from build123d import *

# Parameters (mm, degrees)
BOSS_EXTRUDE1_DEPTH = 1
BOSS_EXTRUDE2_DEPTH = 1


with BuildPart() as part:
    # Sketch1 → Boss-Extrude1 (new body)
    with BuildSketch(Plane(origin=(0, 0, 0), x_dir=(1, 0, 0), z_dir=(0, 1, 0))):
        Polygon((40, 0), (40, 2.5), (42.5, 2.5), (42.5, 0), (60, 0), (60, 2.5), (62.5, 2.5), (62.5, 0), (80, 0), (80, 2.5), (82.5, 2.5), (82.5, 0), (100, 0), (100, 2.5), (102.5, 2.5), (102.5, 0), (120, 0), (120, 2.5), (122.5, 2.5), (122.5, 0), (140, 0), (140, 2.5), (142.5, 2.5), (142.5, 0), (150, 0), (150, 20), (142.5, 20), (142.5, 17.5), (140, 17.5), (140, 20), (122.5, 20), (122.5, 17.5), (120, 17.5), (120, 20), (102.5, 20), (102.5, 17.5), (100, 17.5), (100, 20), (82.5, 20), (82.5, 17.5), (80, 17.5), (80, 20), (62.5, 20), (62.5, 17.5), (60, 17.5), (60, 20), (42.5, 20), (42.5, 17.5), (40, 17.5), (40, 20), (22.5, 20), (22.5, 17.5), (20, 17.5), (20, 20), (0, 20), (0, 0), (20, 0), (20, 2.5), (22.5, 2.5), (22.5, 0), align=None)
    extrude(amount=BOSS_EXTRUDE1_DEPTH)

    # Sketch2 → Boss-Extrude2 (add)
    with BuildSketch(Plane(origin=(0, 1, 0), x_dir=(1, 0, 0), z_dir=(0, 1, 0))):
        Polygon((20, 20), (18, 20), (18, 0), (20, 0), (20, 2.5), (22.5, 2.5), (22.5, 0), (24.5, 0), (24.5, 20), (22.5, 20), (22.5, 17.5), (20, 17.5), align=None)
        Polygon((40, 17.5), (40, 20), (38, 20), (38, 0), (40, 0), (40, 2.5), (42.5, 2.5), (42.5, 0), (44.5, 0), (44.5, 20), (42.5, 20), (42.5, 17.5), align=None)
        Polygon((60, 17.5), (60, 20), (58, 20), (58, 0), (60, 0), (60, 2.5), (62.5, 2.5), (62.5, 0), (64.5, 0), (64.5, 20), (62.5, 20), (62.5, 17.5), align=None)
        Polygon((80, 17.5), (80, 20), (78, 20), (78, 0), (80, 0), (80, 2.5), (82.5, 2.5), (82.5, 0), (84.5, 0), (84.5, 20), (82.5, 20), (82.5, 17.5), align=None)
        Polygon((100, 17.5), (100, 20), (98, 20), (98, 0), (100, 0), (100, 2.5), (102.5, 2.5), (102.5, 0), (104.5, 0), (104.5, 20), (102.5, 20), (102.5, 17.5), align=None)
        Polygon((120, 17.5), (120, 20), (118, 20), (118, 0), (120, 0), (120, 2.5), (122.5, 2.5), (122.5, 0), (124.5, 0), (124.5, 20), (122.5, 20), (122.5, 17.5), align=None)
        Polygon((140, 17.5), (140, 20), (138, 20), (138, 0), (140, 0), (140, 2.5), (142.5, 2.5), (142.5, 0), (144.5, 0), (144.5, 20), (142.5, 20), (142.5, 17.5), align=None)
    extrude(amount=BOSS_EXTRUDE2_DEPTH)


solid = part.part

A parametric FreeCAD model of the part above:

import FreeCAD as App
import Part
import Sketcher
Q = App.Units.Quantity

doc = App.newDocument("Part")
body = doc.addObject("PartDesign::Body", "Body")

sketch1 = body.newObject("Sketcher::SketchObject", "Sketch")
sketch1.AttachmentSupport = (doc.getObject("XZ_Plane"), [""])
sketch1.MapMode = "FlatFace"
sketch1.addGeometry(Part.LineSegment(App.Vector(40, 0, 0), App.Vector(40, -2.5, 0)), False)
sketch1.addGeometry(Part.LineSegment(App.Vector(40, -2.5, 0), App.Vector(42.5, -2.5, 0)), False)
sketch1.addGeometry(Part.LineSegment(App.Vector(42.5, -2.5, 0), App.Vector(42.5, 0, 0)), False)
sketch1.addGeometry(Part.LineSegment(App.Vector(42.5, 0, 0), App.Vector(60, 0, 0)), False)
sketch1.addGeometry(Part.LineSegment(App.Vector(60, 0, 0), App.Vector(60, -2.5, 0)), False)
sketch1.addGeometry(Part.LineSegment(App.Vector(60, -2.5, 0), App.Vector(62.5, -2.5, 0)), False)
sketch1.addGeometry(Part.LineSegment(App.Vector(62.5, -2.5, 0), App.Vector(62.5, 0, 0)), False)
sketch1.addGeometry(Part.LineSegment(App.Vector(62.5, 0, 0), App.Vector(80, 0, 0)), False)
sketch1.addGeometry(Part.LineSegment(App.Vector(80, 0, 0), App.Vector(80, -2.5, 0)), False)
sketch1.addGeometry(Part.LineSegment(App.Vector(80, -2.5, 0), App.Vector(82.5, -2.5, 0)), False)
sketch1.addGeometry(Part.LineSegment(App.Vector(82.5, -2.5, 0), App.Vector(82.5, 0, 0)), False)
sketch1.addGeometry(Part.LineSegment(App.Vector(82.5, 0, 0), App.Vector(100, 0, 0)), False)
sketch1.addGeometry(Part.LineSegment(App.Vector(100, 0, 0), App.Vector(100, -2.5, 0)), False)
sketch1.addGeometry(Part.LineSegment(App.Vector(100, -2.5, 0), App.Vector(102.5, -2.5, 0)), False)
sketch1.addGeometry(Part.LineSegment(App.Vector(102.5, -2.5, 0), App.Vector(102.5, 0, 0)), False)
sketch1.addGeometry(Part.LineSegment(App.Vector(102.5, 0, 0), App.Vector(120, 0, 0)), False)
sketch1.addGeometry(Part.LineSegment(App.Vector(120, 0, 0), App.Vector(120, -2.5, 0)), False)
sketch1.addGeometry(Part.LineSegment(App.Vector(120, -2.5, 0), App.Vector(122.5, -2.5, 0)), False)
sketch1.addGeometry(Part.LineSegment(App.Vector(122.5, -2.5, 0), App.Vector(122.5, 0, 0)), False)
sketch1.addGeometry(Part.LineSegment(App.Vector(122.5, 0, 0), App.Vector(140, 0, 0)), False)
sketch1.addGeometry(Part.LineSegment(App.Vector(140, 0, 0), App.Vector(140, -2.5, 0)), False)
sketch1.addGeometry(Part.LineSegment(App.Vector(140, -2.5, 0), App.Vector(142.5, -2.5, 0)), False)
sketch1.addGeometry(Part.LineSegment(App.Vector(142.5, -2.5, 0), App.Vector(142.5, 0, 0)), False)
sketch1.addGeometry(Part.LineSegment(App.Vector(142.5, 0, 0), App.Vector(150, 0, 0)), False)
sketch1.addGeometry(Part.LineSegment(App.Vector(150, 0, 0), App.Vector(150, -20, 0)), False)
sketch1.addGeometry(Part.LineSegment(App.Vector(150, -20, 0), App.Vector(142.5, -20, 0)), False)
sketch1.addGeometry(Part.LineSegment(App.Vector(142.5, -20, 0), App.Vector(142.5, -17.5, 0)), False)
sketch1.addGeometry(Part.LineSegment(App.Vector(142.5, -17.5, 0), App.Vector(140, -17.5, 0)), False)
sketch1.addGeometry(Part.LineSegment(App.Vector(140, -17.5, 0), App.Vector(140, -20, 0)), False)
sketch1.addGeometry(Part.LineSegment(App.Vector(140, -20, 0), App.Vector(122.5, -20, 0)), False)
sketch1.addGeometry(Part.LineSegment(App.Vector(122.5, -20, 0), App.Vector(122.5, -17.5, 0)), False)
sketch1.addGeometry(Part.LineSegment(App.Vector(122.5, -17.5, 0), App.Vector(120, -17.5, 0)), False)
sketch1.addGeometry(Part.LineSegment(App.Vector(120, -17.5, 0), App.Vector(120, -20, 0)), False)
sketch1.addGeometry(Part.LineSegment(App.Vector(120, -20, 0), App.Vector(102.5, -20, 0)), False)
sketch1.addGeometry(Part.LineSegment(App.Vector(102.5, -20, 0), App.Vector(102.5, -17.5, 0)), False)
sketch1.addGeometry(Part.LineSegment(App.Vector(102.5, -17.5, 0), App.Vector(100, -17.5, 0)), False)
sketch1.addGeometry(Part.LineSegment(App.Vector(100, -17.5, 0), App.Vector(100, -20, 0)), False)
sketch1.addGeometry(Part.LineSegment(App.Vector(100, -20, 0), App.Vector(82.5, -20, 0)), False)
sketch1.addGeometry(Part.LineSegment(App.Vector(82.5, -20, 0), App.Vector(82.5, -17.5, 0)), False)
sketch1.addGeometry(Part.LineSegment(App.Vector(82.5, -17.5, 0), App.Vector(80, -17.5, 0)), False)
sketch1.addGeometry(Part.LineSegment(App.Vector(80, -17.5, 0), App.Vector(80, -20, 0)), False)
sketch1.addGeometry(Part.LineSegment(App.Vector(80, -20, 0), App.Vector(62.5, -20, 0)), False)
sketch1.addGeometry(Part.LineSegment(App.Vector(62.5, -20, 0), App.Vector(62.5, -17.5, 0)), False)
sketch1.addGeometry(Part.LineSegment(App.Vector(62.5, -17.5, 0), App.Vector(60, -17.5, 0)), False)
sketch1.addGeometry(Part.LineSegment(App.Vector(60, -17.5, 0), App.Vector(60, -20, 0)), False)
sketch1.addGeometry(Part.LineSegment(App.Vector(60, -20, 0), App.Vector(42.5, -20, 0)), False)
sketch1.addGeometry(Part.LineSegment(App.Vector(42.5, -20, 0), App.Vector(42.5, -17.5, 0)), False)
sketch1.addGeometry(Part.LineSegment(App.Vector(42.5, -17.5, 0), App.Vector(40, -17.5, 0)), False)
sketch1.addGeometry(Part.LineSegment(App.Vector(40, -17.5, 0), App.Vector(40, -20, 0)), False)
sketch1.addGeometry(Part.LineSegment(App.Vector(40, -20, 0), App.Vector(22.5, -20, 0)), False)
sketch1.addGeometry(Part.LineSegment(App.Vector(22.5, -20, 0), App.Vector(22.5, -17.5, 0)), False)
sketch1.addGeometry(Part.LineSegment(App.Vector(22.5, -17.5, 0), App.Vector(20, -17.5, 0)), False)
sketch1.addGeometry(Part.LineSegment(App.Vector(20, -17.5, 0), App.Vector(20, -20, 0)), False)
sketch1.addGeometry(Part.LineSegment(App.Vector(20, -20, 0), App.Vector(0, -20, 0)), False)
sketch1.addGeometry(Part.LineSegment(App.Vector(0, -20, 0), App.Vector(0, 0, 0)), False)
sketch1.addGeometry(Part.LineSegment(App.Vector(0, 0, 0), App.Vector(20, 0, 0)), False)
sketch1.addGeometry(Part.LineSegment(App.Vector(20, 0, 0), App.Vector(20, -2.5, 0)), False)
sketch1.addGeometry(Part.LineSegment(App.Vector(20, -2.5, 0), App.Vector(22.5, -2.5, 0)), False)
sketch1.addGeometry(Part.LineSegment(App.Vector(22.5, -2.5, 0), App.Vector(22.5, 0, 0)), False)
sketch1.addGeometry(Part.LineSegment(App.Vector(22.5, 0, 0), App.Vector(40, 0, 0)), False)
sketch1.addConstraint(Sketcher.Constraint("Coincident", 0, 2, 1, 1))
sketch1.addConstraint(Sketcher.Constraint("Coincident", 1, 2, 2, 1))
sketch1.addConstraint(Sketcher.Constraint("Coincident", 2, 2, 3, 1))
sketch1.addConstraint(Sketcher.Constraint("Coincident", 3, 2, 4, 1))
sketch1.addConstraint(Sketcher.Constraint("Coincident", 4, 2, 5, 1))
sketch1.addConstraint(Sketcher.Constraint("Coincident", 5, 2, 6, 1))
sketch1.addConstraint(Sketcher.Constraint("Coincident", 6, 2, 7, 1))
sketch1.addConstraint(Sketcher.Constraint("Coincident", 7, 2, 8, 1))
sketch1.addConstraint(Sketcher.Constraint("Coincident", 8, 2, 9, 1))
sketch1.addConstraint(Sketcher.Constraint("Coincident", 9, 2, 10, 1))
sketch1.addConstraint(Sketcher.Constraint("Coincident", 10, 2, 11, 1))
sketch1.addConstraint(Sketcher.Constraint("Coincident", 11, 2, 12, 1))
sketch1.addConstraint(Sketcher.Constraint("Coincident", 12, 2, 13, 1))
sketch1.addConstraint(Sketcher.Constraint("Coincident", 13, 2, 14, 1))
sketch1.addConstraint(Sketcher.Constraint("Coincident", 14, 2, 15, 1))
sketch1.addConstraint(Sketcher.Constraint("Coincident", 15, 2, 16, 1))
sketch1.addConstraint(Sketcher.Constraint("Coincident", 16, 2, 17, 1))
sketch1.addConstraint(Sketcher.Constraint("Coincident", 17, 2, 18, 1))
sketch1.addConstraint(Sketcher.Constraint("Coincident", 18, 2, 19, 1))
sketch1.addConstraint(Sketcher.Constraint("Coincident", 19, 2, 20, 1))
sketch1.addConstraint(Sketcher.Constraint("Coincident", 20, 2, 21, 1))
sketch1.addConstraint(Sketcher.Constraint("Coincident", 21, 2, 22, 1))
sketch1.addConstraint(Sketcher.Constraint("Coincident", 22, 2, 23, 1))
sketch1.addConstraint(Sketcher.Constraint("Coincident", 23, 2, 24, 1))
sketch1.addConstraint(Sketcher.Constraint("Coincident", 24, 2, 25, 1))
sketch1.addConstraint(Sketcher.Constraint("Coincident", 25, 2, 26, 1))
sketch1.addConstraint(Sketcher.Constraint("Coincident", 26, 2, 27, 1))
sketch1.addConstraint(Sketcher.Constraint("Coincident", 27, 2, 28, 1))
sketch1.addConstraint(Sketcher.Constraint("Coincident", 28, 2, 29, 1))
sketch1.addConstraint(Sketcher.Constraint("Coincident", 29, 2, 30, 1))
sketch1.addConstraint(Sketcher.Constraint("Coincident", 30, 2, 31, 1))
sketch1.addConstraint(Sketcher.Constraint("Coincident", 31, 2, 32, 1))
sketch1.addConstraint(Sketcher.Constraint("Coincident", 32, 2, 33, 1))
sketch1.addConstraint(Sketcher.Constraint("Coincident", 33, 2, 34, 1))
sketch1.addConstraint(Sketcher.Constraint("Coincident", 34, 2, 35, 1))
sketch1.addConstraint(Sketcher.Constraint("Coincident", 35, 2, 36, 1))
sketch1.addConstraint(Sketcher.Constraint("Coincident", 36, 2, 37, 1))
sketch1.addConstraint(Sketcher.Constraint("Coincident", 37, 2, 38, 1))
sketch1.addConstraint(Sketcher.Constraint("Coincident", 38, 2, 39, 1))
sketch1.addConstraint(Sketcher.Constraint("Coincident", 39, 2, 40, 1))
sketch1.addConstraint(Sketcher.Constraint("Coincident", 40, 2, 41, 1))
sketch1.addConstraint(Sketcher.Constraint("Coincident", 41, 2, 42, 1))
sketch1.addConstraint(Sketcher.Constraint("Coincident", 42, 2, 43, 1))
sketch1.addConstraint(Sketcher.Constraint("Coincident", 43, 2, 44, 1))
sketch1.addConstraint(Sketcher.Constraint("Coincident", 44, 2, 45, 1))
sketch1.addConstraint(Sketcher.Constraint("Coincident", 45, 2, 46, 1))
sketch1.addConstraint(Sketcher.Constraint("Coincident", 46, 2, 47, 1))
sketch1.addConstraint(Sketcher.Constraint("Coincident", 47, 2, 48, 1))
sketch1.addConstraint(Sketcher.Constraint("Coincident", 48, 2, 49, 1))
sketch1.addConstraint(Sketcher.Constraint("Coincident", 49, 2, 50, 1))
sketch1.addConstraint(Sketcher.Constraint("Coincident", 50, 2, 51, 1))
sketch1.addConstraint(Sketcher.Constraint("Coincident", 51, 2, 52, 1))
sketch1.addConstraint(Sketcher.Constraint("Coincident", 52, 2, 53, 1))
sketch1.addConstraint(Sketcher.Constraint("Coincident", 53, 2, 54, 1))
sketch1.addConstraint(Sketcher.Constraint("Coincident", 54, 2, 55, 1))
sketch1.addConstraint(Sketcher.Constraint("Coincident", 55, 2, 56, 1))
sketch1.addConstraint(Sketcher.Constraint("Coincident", 56, 2, 57, 1))
sketch1.addConstraint(Sketcher.Constraint("Coincident", 57, 2, 58, 1))
sketch1.addConstraint(Sketcher.Constraint("Coincident", 58, 2, 59, 1))
sketch1.addConstraint(Sketcher.Constraint("Coincident", 59, 2, 0, 1))
sketch1.addConstraint(Sketcher.Constraint("Vertical", 0))
sketch1.addConstraint(Sketcher.Constraint("Horizontal", 1))
sketch1.addConstraint(Sketcher.Constraint("Vertical", 2))
sketch1.addConstraint(Sketcher.Constraint("Horizontal", 3))
sketch1.addConstraint(Sketcher.Constraint("Vertical", 4))
sketch1.addConstraint(Sketcher.Constraint("Horizontal", 5))
sketch1.addConstraint(Sketcher.Constraint("Vertical", 6))
sketch1.addConstraint(Sketcher.Constraint("Horizontal", 7))
sketch1.addConstraint(Sketcher.Constraint("Vertical", 8))
sketch1.addConstraint(Sketcher.Constraint("Horizontal", 9))
sketch1.addConstraint(Sketcher.Constraint("Vertical", 10))
sketch1.addConstraint(Sketcher.Constraint("Horizontal", 11))
sketch1.addConstraint(Sketcher.Constraint("Vertical", 12))
sketch1.addConstraint(Sketcher.Constraint("Horizontal", 13))
sketch1.addConstraint(Sketcher.Constraint("Vertical", 14))
sketch1.addConstraint(Sketcher.Constraint("Horizontal", 15))
sketch1.addConstraint(Sketcher.Constraint("Vertical", 16))
sketch1.addConstraint(Sketcher.Constraint("Horizontal", 17))
sketch1.addConstraint(Sketcher.Constraint("Vertical", 18))
sketch1.addConstraint(Sketcher.Constraint("Horizontal", 19))
sketch1.addConstraint(Sketcher.Constraint("Vertical", 20))
sketch1.addConstraint(Sketcher.Constraint("Horizontal", 21))
sketch1.addConstraint(Sketcher.Constraint("Vertical", 22))
sketch1.addConstraint(Sketcher.Constraint("Horizontal", 23))
sketch1.addConstraint(Sketcher.Constraint("Vertical", 24))
sketch1.addConstraint(Sketcher.Constraint("Horizontal", 25))
sketch1.addConstraint(Sketcher.Constraint("Vertical", 26))
sketch1.addConstraint(Sketcher.Constraint("Horizontal", 27))
sketch1.addConstraint(Sketcher.Constraint("Vertical", 28))
sketch1.addConstraint(Sketcher.Constraint("Horizontal", 29))
sketch1.addConstraint(Sketcher.Constraint("Vertical", 30))
sketch1.addConstraint(Sketcher.Constraint("Horizontal", 31))
sketch1.addConstraint(Sketcher.Constraint("Vertical", 32))
sketch1.addConstraint(Sketcher.Constraint("Horizontal", 33))
sketch1.addConstraint(Sketcher.Constraint("Vertical", 34))
sketch1.addConstraint(Sketcher.Constraint("Horizontal", 35))
sketch1.addConstraint(Sketcher.Constraint("Vertical", 36))
sketch1.addConstraint(Sketcher.Constraint("Horizontal", 37))
sketch1.addConstraint(Sketcher.Constraint("Vertical", 38))
sketch1.addConstraint(Sketcher.Constraint("Horizontal", 39))
sketch1.addConstraint(Sketcher.Constraint("Vertical", 40))
sketch1.addConstraint(Sketcher.Constraint("Horizontal", 41))
sketch1.addConstraint(Sketcher.Constraint("Vertical", 42))
sketch1.addConstraint(Sketcher.Constraint("Horizontal", 43))
sketch1.addConstraint(Sketcher.Constraint("Vertical", 44))
sketch1.addConstraint(Sketcher.Constraint("Horizontal", 45))
sketch1.addConstraint(Sketcher.Constraint("Vertical", 46))
sketch1.addConstraint(Sketcher.Constraint("Horizontal", 47))
sketch1.addConstraint(Sketcher.Constraint("Vertical", 48))
sketch1.addConstraint(Sketcher.Constraint("Horizontal", 49))
sketch1.addConstraint(Sketcher.Constraint("Vertical", 50))
sketch1.addConstraint(Sketcher.Constraint("Horizontal", 51))
sketch1.addConstraint(Sketcher.Constraint("Vertical", 52))
sketch1.addConstraint(Sketcher.Constraint("Horizontal", 53))
sketch1.addConstraint(Sketcher.Constraint("Vertical", 54))
sketch1.addConstraint(Sketcher.Constraint("Horizontal", 55))
sketch1.addConstraint(Sketcher.Constraint("Vertical", 56))
sketch1.addConstraint(Sketcher.Constraint("Horizontal", 57))
sketch1.addConstraint(Sketcher.Constraint("Vertical", 58))
sketch1.addConstraint(Sketcher.Constraint("Horizontal", 59))
sketch1.addConstraint(Sketcher.Constraint("Coincident", 54, 2, -1, 1))
sketch1.addConstraint(Sketcher.Constraint("PointOnObject", 2, 2, -1))
sketch1.addConstraint(Sketcher.Constraint("PointOnObject", 6, 2, -1))
sketch1.addConstraint(Sketcher.Constraint("PointOnObject", 10, 2, -1))
sketch1.addConstraint(Sketcher.Constraint("PointOnObject", 14, 2, -1))
sketch1.addConstraint(Sketcher.Constraint("PointOnObject", 18, 2, -1))
sketch1.addConstraint(Sketcher.Constraint("PointOnObject", 22, 2, -1))
sketch1.addConstraint(Sketcher.Constraint("PointOnObject", 58, 2, -1))
sketch1.addConstraint(Sketcher.Constraint("Horizontal", 1, 2, 4, 2))
sketch1.addConstraint(Sketcher.Constraint("Horizontal", 5, 2, 8, 2))
sketch1.addConstraint(Sketcher.Constraint("Horizontal", 9, 2, 12, 2))
sketch1.addConstraint(Sketcher.Constraint("Horizontal", 13, 2, 16, 2))
sketch1.addConstraint(Sketcher.Constraint("Horizontal", 17, 2, 20, 2))
sketch1.addConstraint(Sketcher.Constraint("Horizontal", 25, 2, 28, 2))
sketch1.addConstraint(Sketcher.Constraint("Horizontal", 27, 2, 30, 2))
sketch1.addConstraint(Sketcher.Constraint("Horizontal", 29, 2, 32, 2))
sketch1.addConstraint(Sketcher.Constraint("Horizontal", 31, 2, 34, 2))
sketch1.addConstraint(Sketcher.Constraint("Horizontal", 33, 2, 36, 2))
sketch1.addConstraint(Sketcher.Constraint("Horizontal", 35, 2, 38, 2))
sketch1.addConstraint(Sketcher.Constraint("Horizontal", 37, 2, 40, 2))
sketch1.addConstraint(Sketcher.Constraint("Horizontal", 39, 2, 42, 2))
sketch1.addConstraint(Sketcher.Constraint("Horizontal", 41, 2, 44, 2))
sketch1.addConstraint(Sketcher.Constraint("Horizontal", 43, 2, 46, 2))
sketch1.addConstraint(Sketcher.Constraint("Horizontal", 45, 2, 48, 2))
sketch1.addConstraint(Sketcher.Constraint("Horizontal", 47, 2, 50, 2))
sketch1.addConstraint(Sketcher.Constraint("Horizontal", 49, 2, 52, 2))
sketch1.addConstraint(Sketcher.Constraint("Horizontal", 21, 2, 56, 2))
sketch1.addConstraint(Sketcher.Constraint("Vertical", 22, 2, 25, 2))
sketch1.addConstraint(Sketcher.Constraint("Vertical", 20, 2, 27, 2))
sketch1.addConstraint(Sketcher.Constraint("Vertical", 18, 2, 29, 2))
sketch1.addConstraint(Sketcher.Constraint("Vertical", 16, 2, 31, 2))
sketch1.addConstraint(Sketcher.Constraint("Vertical", 14, 2, 33, 2))
sketch1.addConstraint(Sketcher.Constraint("Vertical", 12, 2, 35, 2))
sketch1.addConstraint(Sketcher.Constraint("Vertical", 10, 2, 37, 2))
sketch1.addConstraint(Sketcher.Constraint("Vertical", 8, 2, 39, 2))
sketch1.addConstraint(Sketcher.Constraint("Vertical", 6, 2, 41, 2))
sketch1.addConstraint(Sketcher.Constraint("Vertical", 4, 2, 43, 2))
sketch1.addConstraint(Sketcher.Constraint("Vertical", 2, 2, 45, 2))
sketch1.addConstraint(Sketcher.Constraint("Vertical", 0, 2, 47, 2))
sketch1.addConstraint(Sketcher.Constraint("Vertical", 52, 2, 55, 2))
sketch1.addConstraint(Sketcher.Constraint("Vertical", 50, 2, 57, 2))
sketch1.addConstraint(Sketcher.Constraint("Equal", 1, 5))
sketch1.addConstraint(Sketcher.Constraint("Equal", 3, 7))
sketch1.addConstraint(Sketcher.Constraint("Equal", 5, 9))
sketch1.addConstraint(Sketcher.Constraint("Equal", 7, 11))
sketch1.addConstraint(Sketcher.Constraint("Equal", 9, 13))
sketch1.addConstraint(Sketcher.Constraint("Equal", 11, 15))
sketch1.addConstraint(Sketcher.Constraint("Equal", 13, 17))
sketch1.addConstraint(Sketcher.Constraint("Equal", 15, 19))
sketch1.addConstraint(Sketcher.Constraint("Equal", 17, 21))
sketch1.addConstraint(Sketcher.Constraint("Equal", 45, 49))
sketch1.addConstraint(Sketcher.Constraint("Equal", 47, 51))
sketch1.addConstraint(Sketcher.Constraint("Equal", 57, 0))
sketch1.addConstraint(Sketcher.Constraint("Equal", 55, 24))
sketch1.addConstraint(Sketcher.Constraint("Equal", 22, 26))
sketch1.addConstraint(Sketcher.Constraint("DistanceX", 53, 2, 53, 1, Q("20 mm")))
sketch1.addConstraint(Sketcher.Constraint("DistanceX", 1, 1, 1, 2, Q("2.5 mm")))
sketch1.addConstraint(Sketcher.Constraint("DistanceX", 3, 1, 3, 2, Q("17.5 mm")))
sketch1.addConstraint(Sketcher.Constraint("DistanceX", 23, 1, 23, 2, Q("7.5 mm")))
pad1 = body.newObject("PartDesign::Pad", "Pad")
pad1.Profile = sketch1
pad1.Length = 1
pad1.Reversed = True

sketch2 = body.newObject("Sketcher::SketchObject", "Sketch001")
sketch2.AttachmentSupport = (doc.getObject("XZ_Plane"), [""])
sketch2.MapMode = "FlatFace"
sketch2.AttachmentOffset = App.Placement(App.Vector(0, 0, -1), App.Rotation())
sketch2.addGeometry(Part.LineSegment(App.Vector(20, -20, 0), App.Vector(18, -20, 0)), False)
sketch2.addGeometry(Part.LineSegment(App.Vector(18, -20, 0), App.Vector(18, 0, 0)), False)
sketch2.addGeometry(Part.LineSegment(App.Vector(18, 0, 0), App.Vector(20, 0, 0)), False)
sketch2.addGeometry(Part.LineSegment(App.Vector(20, 0, 0), App.Vector(20, -2.5, 0)), False)
sketch2.addGeometry(Part.LineSegment(App.Vector(20, -2.5, 0), App.Vector(22.5, -2.5, 0)), False)
sketch2.addGeometry(Part.LineSegment(App.Vector(22.5, -2.5, 0), App.Vector(22.5, 0, 0)), False)
sketch2.addGeometry(Part.LineSegment(App.Vector(22.5, 0, 0), App.Vector(24.5, 0, 0)), False)
sketch2.addGeometry(Part.LineSegment(App.Vector(24.5, 0, 0), App.Vector(24.5, -20, 0)), False)
sketch2.addGeometry(Part.LineSegment(App.Vector(24.5, -20, 0), App.Vector(22.5, -20, 0)), False)
sketch2.addGeometry(Part.LineSegment(App.Vector(22.5, -20, 0), App.Vector(22.5, -17.5, 0)), False)
sketch2.addGeometry(Part.LineSegment(App.Vector(22.5, -17.5, 0), App.Vector(20, -17.5, 0)), False)
sketch2.addGeometry(Part.LineSegment(App.Vector(20, -17.5, 0), App.Vector(20, -20, 0)), False)
sketch2.addGeometry(Part.LineSegment(App.Vector(40, -17.5, 0), App.Vector(40, -20, 0)), False)
sketch2.addGeometry(Part.LineSegment(App.Vector(40, -20, 0), App.Vector(38, -20, 0)), False)
sketch2.addGeometry(Part.LineSegment(App.Vector(38, -20, 0), App.Vector(38, 0, 0)), False)
sketch2.addGeometry(Part.LineSegment(App.Vector(38, 0, 0), App.Vector(40, 0, 0)), False)
sketch2.addGeometry(Part.LineSegment(App.Vector(40, 0, 0), App.Vector(40, -2.5, 0)), False)
sketch2.addGeometry(Part.LineSegment(App.Vector(40, -2.5, 0), App.Vector(42.5, -2.5, 0)), False)
sketch2.addGeometry(Part.LineSegment(App.Vector(42.5, -2.5, 0), App.Vector(42.5, 0, 0)), False)
sketch2.addGeometry(Part.LineSegment(App.Vector(42.5, 0, 0), App.Vector(44.5, 0, 0)), False)
sketch2.addGeometry(Part.LineSegment(App.Vector(44.5, 0, 0), App.Vector(44.5, -20, 0)), False)
sketch2.addGeometry(Part.LineSegment(App.Vector(44.5, -20, 0), App.Vector(42.5, -20, 0)), False)
sketch2.addGeometry(Part.LineSegment(App.Vector(42.5, -20, 0), App.Vector(42.5, -17.5, 0)), False)
sketch2.addGeometry(Part.LineSegment(App.Vector(42.5, -17.5, 0), App.Vector(40, -17.5, 0)), False)
sketch2.addGeometry(Part.LineSegment(App.Vector(60, -17.5, 0), App.Vector(60, -20, 0)), False)
sketch2.addGeometry(Part.LineSegment(App.Vector(60, -20, 0), App.Vector(58, -20, 0)), False)
sketch2.addGeometry(Part.LineSegment(App.Vector(58, -20, 0), App.Vector(58, 0, 0)), False)
sketch2.addGeometry(Part.LineSegment(App.Vector(58, 0, 0), App.Vector(60, 0, 0)), False)
sketch2.addGeometry(Part.LineSegment(App.Vector(60, 0, 0), App.Vector(60, -2.5, 0)), False)
sketch2.addGeometry(Part.LineSegment(App.Vector(60, -2.5, 0), App.Vector(62.5, -2.5, 0)), False)
sketch2.addGeometry(Part.LineSegment(App.Vector(62.5, -2.5, 0), App.Vector(62.5, 0, 0)), False)
sketch2.addGeometry(Part.LineSegment(App.Vector(62.5, 0, 0), App.Vector(64.5, 0, 0)), False)
sketch2.addGeometry(Part.LineSegment(App.Vector(64.5, 0, 0), App.Vector(64.5, -20, 0)), False)
sketch2.addGeometry(Part.LineSegment(App.Vector(64.5, -20, 0), App.Vector(62.5, -20, 0)), False)
sketch2.addGeometry(Part.LineSegment(App.Vector(62.5, -20, 0), App.Vector(62.5, -17.5, 0)), False)
sketch2.addGeometry(Part.LineSegment(App.Vector(62.5, -17.5, 0), App.Vector(60, -17.5, 0)), False)
sketch2.addGeometry(Part.LineSegment(App.Vector(80, -17.5, 0), App.Vector(80, -20, 0)), False)
sketch2.addGeometry(Part.LineSegment(App.Vector(80, -20, 0), App.Vector(78, -20, 0)), False)
sketch2.addGeometry(Part.LineSegment(App.Vector(78, -20, 0), App.Vector(78, 0, 0)), False)
sketch2.addGeometry(Part.LineSegment(App.Vector(78, 0, 0), App.Vector(80, 0, 0)), False)
sketch2.addGeometry(Part.LineSegment(App.Vector(80, 0, 0), App.Vector(80, -2.5, 0)), False)
sketch2.addGeometry(Part.LineSegment(App.Vector(80, -2.5, 0), App.Vector(82.5, -2.5, 0)), False)
sketch2.addGeometry(Part.LineSegment(App.Vector(82.5, -2.5, 0), App.Vector(82.5, 0, 0)), False)
sketch2.addGeometry(Part.LineSegment(App.Vector(82.5, 0, 0), App.Vector(84.5, 0, 0)), False)
sketch2.addGeometry(Part.LineSegment(App.Vector(84.5, 0, 0), App.Vector(84.5, -20, 0)), False)
sketch2.addGeometry(Part.LineSegment(App.Vector(84.5, -20, 0), App.Vector(82.5, -20, 0)), False)
sketch2.addGeometry(Part.LineSegment(App.Vector(82.5, -20, 0), App.Vector(82.5, -17.5, 0)), False)
sketch2.addGeometry(Part.LineSegment(App.Vector(82.5, -17.5, 0), App.Vector(80, -17.5, 0)), False)
sketch2.addGeometry(Part.LineSegment(App.Vector(100, -17.5, 0), App.Vector(100, -20, 0)), False)
sketch2.addGeometry(Part.LineSegment(App.Vector(100, -20, 0), App.Vector(98, -20, 0)), False)
sketch2.addGeometry(Part.LineSegment(App.Vector(98, -20, 0), App.Vector(98, 0, 0)), False)
sketch2.addGeometry(Part.LineSegment(App.Vector(98, 0, 0), App.Vector(100, 0, 0)), False)
sketch2.addGeometry(Part.LineSegment(App.Vector(100, 0, 0), App.Vector(100, -2.5, 0)), False)
sketch2.addGeometry(Part.LineSegment(App.Vector(100, -2.5, 0), App.Vector(102.5, -2.5, 0)), False)
sketch2.addGeometry(Part.LineSegment(App.Vector(102.5, -2.5, 0), App.Vector(102.5, 0, 0)), False)
sketch2.addGeometry(Part.LineSegment(App.Vector(102.5, 0, 0), App.Vector(104.5, 0, 0)), False)
sketch2.addGeometry(Part.LineSegment(App.Vector(104.5, 0, 0), App.Vector(104.5, -20, 0)), False)
sketch2.addGeometry(Part.LineSegment(App.Vector(104.5, -20, 0), App.Vector(102.5, -20, 0)), False)
sketch2.addGeometry(Part.LineSegment(App.Vector(102.5, -20, 0), App.Vector(102.5, -17.5, 0)), False)
sketch2.addGeometry(Part.LineSegment(App.Vector(102.5, -17.5, 0), App.Vector(100, -17.5, 0)), False)
sketch2.addGeometry(Part.LineSegment(App.Vector(120, -17.5, 0), App.Vector(120, -20, 0)), False)
sketch2.addGeometry(Part.LineSegment(App.Vector(120, -20, 0), App.Vector(118, -20, 0)), False)
sketch2.addGeometry(Part.LineSegment(App.Vector(118, -20, 0), App.Vector(118, 0, 0)), False)
sketch2.addGeometry(Part.LineSegment(App.Vector(118, 0, 0), App.Vector(120, 0, 0)), False)
sketch2.addGeometry(Part.LineSegment(App.Vector(120, 0, 0), App.Vector(120, -2.5, 0)), False)
sketch2.addGeometry(Part.LineSegment(App.Vector(120, -2.5, 0), App.Vector(122.5, -2.5, 0)), False)
sketch2.addGeometry(Part.LineSegment(App.Vector(122.5, -2.5, 0), App.Vector(122.5, 0, 0)), False)
sketch2.addGeometry(Part.LineSegment(App.Vector(122.5, 0, 0), App.Vector(124.5, 0, 0)), False)
sketch2.addGeometry(Part.LineSegment(App.Vector(124.5, 0, 0), App.Vector(124.5, -20, 0)), False)
sketch2.addGeometry(Part.LineSegment(App.Vector(124.5, -20, 0), App.Vector(122.5, -20, 0)), False)
sketch2.addGeometry(Part.LineSegment(App.Vector(122.5, -20, 0), App.Vector(122.5, -17.5, 0)), False)
sketch2.addGeometry(Part.LineSegment(App.Vector(122.5, -17.5, 0), App.Vector(120, -17.5, 0)), False)
sketch2.addGeometry(Part.LineSegment(App.Vector(140, -17.5, 0), App.Vector(140, -20, 0)), False)
sketch2.addGeometry(Part.LineSegment(App.Vector(140, -20, 0), App.Vector(138, -20, 0)), False)
sketch2.addGeometry(Part.LineSegment(App.Vector(138, -20, 0), App.Vector(138, 0, 0)), False)
sketch2.addGeometry(Part.LineSegment(App.Vector(138, 0, 0), App.Vector(140, 0, 0)), False)
sketch2.addGeometry(Part.LineSegment(App.Vector(140, 0, 0), App.Vector(140, -2.5, 0)), False)
sketch2.addGeometry(Part.LineSegment(App.Vector(140, -2.5, 0), App.Vector(142.5, -2.5, 0)), False)
sketch2.addGeometry(Part.LineSegment(App.Vector(142.5, -2.5, 0), App.Vector(142.5, 0, 0)), False)
sketch2.addGeometry(Part.LineSegment(App.Vector(142.5, 0, 0), App.Vector(144.5, 0, 0)), False)
sketch2.addGeometry(Part.LineSegment(App.Vector(144.5, 0, 0), App.Vector(144.5, -20, 0)), False)
sketch2.addGeometry(Part.LineSegment(App.Vector(144.5, -20, 0), App.Vector(142.5, -20, 0)), False)
sketch2.addGeometry(Part.LineSegment(App.Vector(142.5, -20, 0), App.Vector(142.5, -17.5, 0)), False)
sketch2.addGeometry(Part.LineSegment(App.Vector(142.5, -17.5, 0), App.Vector(140, -17.5, 0)), False)
sketch2.addConstraint(Sketcher.Constraint("Coincident", 0, 2, 1, 1))
sketch2.addConstraint(Sketcher.Constraint("Coincident", 1, 2, 2, 1))
sketch2.addConstraint(Sketcher.Constraint("Coincident", 2, 2, 3, 1))
sketch2.addConstraint(Sketcher.Constraint("Coincident", 3, 2, 4, 1))
sketch2.addConstraint(Sketcher.Constraint("Coincident", 4, 2, 5, 1))
sketch2.addConstraint(Sketcher.Constraint("Coincident", 5, 2, 6, 1))
sketch2.addConstraint(Sketcher.Constraint("Coincident", 6, 2, 7, 1))
sketch2.addConstraint(Sketcher.Constraint("Coincident", 7, 2, 8, 1))
sketch2.addConstraint(Sketcher.Constraint("Coincident", 8, 2, 9, 1))
sketch2.addConstraint(Sketcher.Constraint("Coincident", 9, 2, 10, 1))
sketch2.addConstraint(Sketcher.Constraint("Coincident", 10, 2, 11, 1))
sketch2.addConstraint(Sketcher.Constraint("Coincident", 11, 2, 0, 1))
sketch2.addConstraint(Sketcher.Constraint("Coincident", 12, 2, 13, 1))
sketch2.addConstraint(Sketcher.Constraint("Coincident", 13, 2, 14, 1))
sketch2.addConstraint(Sketcher.Constraint("Coincident", 14, 2, 15, 1))
sketch2.addConstraint(Sketcher.Constraint("Coincident", 15, 2, 16, 1))
sketch2.addConstraint(Sketcher.Constraint("Coincident", 16, 2, 17, 1))
sketch2.addConstraint(Sketcher.Constraint("Coincident", 17, 2, 18, 1))
sketch2.addConstraint(Sketcher.Constraint("Coincident", 18, 2, 19, 1))
sketch2.addConstraint(Sketcher.Constraint("Coincident", 19, 2, 20, 1))
sketch2.addConstraint(Sketcher.Constraint("Coincident", 20, 2, 21, 1))
sketch2.addConstraint(Sketcher.Constraint("Coincident", 21, 2, 22, 1))
sketch2.addConstraint(Sketcher.Constraint("Coincident", 22, 2, 23, 1))
sketch2.addConstraint(Sketcher.Constraint("Coincident", 23, 2, 12, 1))
sketch2.addConstraint(Sketcher.Constraint("Coincident", 24, 2, 25, 1))
sketch2.addConstraint(Sketcher.Constraint("Coincident", 25, 2, 26, 1))
sketch2.addConstraint(Sketcher.Constraint("Coincident", 26, 2, 27, 1))
sketch2.addConstraint(Sketcher.Constraint("Coincident", 27, 2, 28, 1))
sketch2.addConstraint(Sketcher.Constraint("Coincident", 28, 2, 29, 1))
sketch2.addConstraint(Sketcher.Constraint("Coincident", 29, 2, 30, 1))
sketch2.addConstraint(Sketcher.Constraint("Coincident", 30, 2, 31, 1))
sketch2.addConstraint(Sketcher.Constraint("Coincident", 31, 2, 32, 1))
sketch2.addConstraint(Sketcher.Constraint("Coincident", 32, 2, 33, 1))
sketch2.addConstraint(Sketcher.Constraint("Coincident", 33, 2, 34, 1))
sketch2.addConstraint(Sketcher.Constraint("Coincident", 34, 2, 35, 1))
sketch2.addConstraint(Sketcher.Constraint("Coincident", 35, 2, 24, 1))
sketch2.addConstraint(Sketcher.Constraint("Coincident", 36, 2, 37, 1))
sketch2.addConstraint(Sketcher.Constraint("Coincident", 37, 2, 38, 1))
sketch2.addConstraint(Sketcher.Constraint("Coincident", 38, 2, 39, 1))
sketch2.addConstraint(Sketcher.Constraint("Coincident", 39, 2, 40, 1))
sketch2.addConstraint(Sketcher.Constraint("Coincident", 40, 2, 41, 1))
sketch2.addConstraint(Sketcher.Constraint("Coincident", 41, 2, 42, 1))
sketch2.addConstraint(Sketcher.Constraint("Coincident", 42, 2, 43, 1))
sketch2.addConstraint(Sketcher.Constraint("Coincident", 43, 2, 44, 1))
sketch2.addConstraint(Sketcher.Constraint("Coincident", 44, 2, 45, 1))
sketch2.addConstraint(Sketcher.Constraint("Coincident", 45, 2, 46, 1))
sketch2.addConstraint(Sketcher.Constraint("Coincident", 46, 2, 47, 1))
sketch2.addConstraint(Sketcher.Constraint("Coincident", 47, 2, 36, 1))
sketch2.addConstraint(Sketcher.Constraint("Coincident", 48, 2, 49, 1))
sketch2.addConstraint(Sketcher.Constraint("Coincident", 49, 2, 50, 1))
sketch2.addConstraint(Sketcher.Constraint("Coincident", 50, 2, 51, 1))
sketch2.addConstraint(Sketcher.Constraint("Coincident", 51, 2, 52, 1))
sketch2.addConstraint(Sketcher.Constraint("Coincident", 52, 2, 53, 1))
sketch2.addConstraint(Sketcher.Constraint("Coincident", 53, 2, 54, 1))
sketch2.addConstraint(Sketcher.Constraint("Coincident", 54, 2, 55, 1))
sketch2.addConstraint(Sketcher.Constraint("Coincident", 55, 2, 56, 1))
sketch2.addConstraint(Sketcher.Constraint("Coincident", 56, 2, 57, 1))
sketch2.addConstraint(Sketcher.Constraint("Coincident", 57, 2, 58, 1))
sketch2.addConstraint(Sketcher.Constraint("Coincident", 58, 2, 59, 1))
sketch2.addConstraint(Sketcher.Constraint("Coincident", 59, 2, 48, 1))
sketch2.addConstraint(Sketcher.Constraint("Coincident", 60, 2, 61, 1))
sketch2.addConstraint(Sketcher.Constraint("Coincident", 61, 2, 62, 1))
sketch2.addConstraint(Sketcher.Constraint("Coincident", 62, 2, 63, 1))
sketch2.addConstraint(Sketcher.Constraint("Coincident", 63, 2, 64, 1))
sketch2.addConstraint(Sketcher.Constraint("Coincident", 64, 2, 65, 1))
sketch2.addConstraint(Sketcher.Constraint("Coincident", 65, 2, 66, 1))
sketch2.addConstraint(Sketcher.Constraint("Coincident", 66, 2, 67, 1))
sketch2.addConstraint(Sketcher.Constraint("Coincident", 67, 2, 68, 1))
sketch2.addConstraint(Sketcher.Constraint("Coincident", 68, 2, 69, 1))
sketch2.addConstraint(Sketcher.Constraint("Coincident", 69, 2, 70, 1))
sketch2.addConstraint(Sketcher.Constraint("Coincident", 70, 2, 71, 1))
sketch2.addConstraint(Sketcher.Constraint("Coincident", 71, 2, 60, 1))
sketch2.addConstraint(Sketcher.Constraint("Coincident", 72, 2, 73, 1))
sketch2.addConstraint(Sketcher.Constraint("Coincident", 73, 2, 74, 1))
sketch2.addConstraint(Sketcher.Constraint("Coincident", 74, 2, 75, 1))
sketch2.addConstraint(Sketcher.Constraint("Coincident", 75, 2, 76, 1))
sketch2.addConstraint(Sketcher.Constraint("Coincident", 76, 2, 77, 1))
sketch2.addConstraint(Sketcher.Constraint("Coincident", 77, 2, 78, 1))
sketch2.addConstraint(Sketcher.Constraint("Coincident", 78, 2, 79, 1))
sketch2.addConstraint(Sketcher.Constraint("Coincident", 79, 2, 80, 1))
sketch2.addConstraint(Sketcher.Constraint("Coincident", 80, 2, 81, 1))
sketch2.addConstraint(Sketcher.Constraint("Coincident", 81, 2, 82, 1))
sketch2.addConstraint(Sketcher.Constraint("Coincident", 82, 2, 83, 1))
sketch2.addConstraint(Sketcher.Constraint("Coincident", 83, 2, 72, 1))
sketch2.addConstraint(Sketcher.Constraint("Horizontal", 0))
sketch2.addConstraint(Sketcher.Constraint("Vertical", 1))
sketch2.addConstraint(Sketcher.Constraint("Horizontal", 2))
sketch2.addConstraint(Sketcher.Constraint("Vertical", 3))
sketch2.addConstraint(Sketcher.Constraint("Horizontal", 4))
sketch2.addConstraint(Sketcher.Constraint("Vertical", 5))
sketch2.addConstraint(Sketcher.Constraint("Horizontal", 6))
sketch2.addConstraint(Sketcher.Constraint("Vertical", 7))
sketch2.addConstraint(Sketcher.Constraint("Horizontal", 8))
sketch2.addConstraint(Sketcher.Constraint("Vertical", 9))
sketch2.addConstraint(Sketcher.Constraint("Horizontal", 10))
sketch2.addConstraint(Sketcher.Constraint("Vertical", 11))
sketch2.addConstraint(Sketcher.Constraint("Vertical", 12))
sketch2.addConstraint(Sketcher.Constraint("Horizontal", 13))
sketch2.addConstraint(Sketcher.Constraint("Vertical", 14))
sketch2.addConstraint(Sketcher.Constraint("Horizontal", 15))
sketch2.addConstraint(Sketcher.Constraint("Vertical", 16))
sketch2.addConstraint(Sketcher.Constraint("Horizontal", 17))
sketch2.addConstraint(Sketcher.Constraint("Vertical", 18))
sketch2.addConstraint(Sketcher.Constraint("Horizontal", 19))
sketch2.addConstraint(Sketcher.Constraint("Vertical", 20))
sketch2.addConstraint(Sketcher.Constraint("Horizontal", 21))
sketch2.addConstraint(Sketcher.Constraint("Vertical", 22))
sketch2.addConstraint(Sketcher.Constraint("Horizontal", 23))
sketch2.addConstraint(Sketcher.Constraint("Vertical", 24))
sketch2.addConstraint(Sketcher.Constraint("Horizontal", 25))
sketch2.addConstraint(Sketcher.Constraint("Vertical", 26))
sketch2.addConstraint(Sketcher.Constraint("Horizontal", 27))
sketch2.addConstraint(Sketcher.Constraint("Vertical", 28))
sketch2.addConstraint(Sketcher.Constraint("Horizontal", 29))
sketch2.addConstraint(Sketcher.Constraint("Vertical", 30))
sketch2.addConstraint(Sketcher.Constraint("Horizontal", 31))
sketch2.addConstraint(Sketcher.Constraint("Vertical", 32))
sketch2.addConstraint(Sketcher.Constraint("Horizontal", 33))
sketch2.addConstraint(Sketcher.Constraint("Vertical", 34))
sketch2.addConstraint(Sketcher.Constraint("Horizontal", 35))
sketch2.addConstraint(Sketcher.Constraint("Vertical", 36))
sketch2.addConstraint(Sketcher.Constraint("Horizontal", 37))
sketch2.addConstraint(Sketcher.Constraint("Vertical", 38))
sketch2.addConstraint(Sketcher.Constraint("Horizontal", 39))
sketch2.addConstraint(Sketcher.Constraint("Vertical", 40))
sketch2.addConstraint(Sketcher.Constraint("Horizontal", 41))
sketch2.addConstraint(Sketcher.Constraint("Vertical", 42))
sketch2.addConstraint(Sketcher.Constraint("Horizontal", 43))
sketch2.addConstraint(Sketcher.Constraint("Vertical", 44))
sketch2.addConstraint(Sketcher.Constraint("Horizontal", 45))
sketch2.addConstraint(Sketcher.Constraint("Vertical", 46))
sketch2.addConstraint(Sketcher.Constraint("Horizontal", 47))
sketch2.addConstraint(Sketcher.Constraint("Vertical", 48))
sketch2.addConstraint(Sketcher.Constraint("Horizontal", 49))
sketch2.addConstraint(Sketcher.Constraint("Vertical", 50))
sketch2.addConstraint(Sketcher.Constraint("Horizontal", 51))
sketch2.addConstraint(Sketcher.Constraint("Vertical", 52))
sketch2.addConstraint(Sketcher.Constraint("Horizontal", 53))
sketch2.addConstraint(Sketcher.Constraint("Vertical", 54))
sketch2.addConstraint(Sketcher.Constraint("Horizontal", 55))
sketch2.addConstraint(Sketcher.Constraint("Vertical", 56))
sketch2.addConstraint(Sketcher.Constraint("Horizontal", 57))
sketch2.addConstraint(Sketcher.Constraint("Vertical", 58))
sketch2.addConstraint(Sketcher.Constraint("Horizontal", 59))
sketch2.addConstraint(Sketcher.Constraint("Vertical", 60))
sketch2.addConstraint(Sketcher.Constraint("Horizontal", 61))
sketch2.addConstraint(Sketcher.Constraint("Vertical", 62))
sketch2.addConstraint(Sketcher.Constraint("Horizontal", 63))
sketch2.addConstraint(Sketcher.Constraint("Vertical", 64))
sketch2.addConstraint(Sketcher.Constraint("Horizontal", 65))
sketch2.addConstraint(Sketcher.Constraint("Vertical", 66))
sketch2.addConstraint(Sketcher.Constraint("Horizontal", 67))
sketch2.addConstraint(Sketcher.Constraint("Vertical", 68))
sketch2.addConstraint(Sketcher.Constraint("Horizontal", 69))
sketch2.addConstraint(Sketcher.Constraint("Vertical", 70))
sketch2.addConstraint(Sketcher.Constraint("Horizontal", 71))
sketch2.addConstraint(Sketcher.Constraint("Vertical", 72))
sketch2.addConstraint(Sketcher.Constraint("Horizontal", 73))
sketch2.addConstraint(Sketcher.Constraint("Vertical", 74))
sketch2.addConstraint(Sketcher.Constraint("Horizontal", 75))
sketch2.addConstraint(Sketcher.Constraint("Vertical", 76))
sketch2.addConstraint(Sketcher.Constraint("Horizontal", 77))
sketch2.addConstraint(Sketcher.Constraint("Vertical", 78))
sketch2.addConstraint(Sketcher.Constraint("Horizontal", 79))
sketch2.addConstraint(Sketcher.Constraint("Vertical", 80))
sketch2.addConstraint(Sketcher.Constraint("Horizontal", 81))
sketch2.addConstraint(Sketcher.Constraint("Vertical", 82))
sketch2.addConstraint(Sketcher.Constraint("Horizontal", 83))
sketch2.addConstraint(Sketcher.Constraint("PointOnObject", 1, 2, -1))
sketch2.addConstraint(Sketcher.Constraint("PointOnObject", 5, 2, -1))
sketch2.addConstraint(Sketcher.Constraint("PointOnObject", 14, 2, -1))
sketch2.addConstraint(Sketcher.Constraint("PointOnObject", 18, 2, -1))
sketch2.addConstraint(Sketcher.Constraint("PointOnObject", 26, 2, -1))
sketch2.addConstraint(Sketcher.Constraint("PointOnObject", 30, 2, -1))
sketch2.addConstraint(Sketcher.Constraint("PointOnObject", 38, 2, -1))
sketch2.addConstraint(Sketcher.Constraint("PointOnObject", 42, 2, -1))
sketch2.addConstraint(Sketcher.Constraint("PointOnObject", 50, 2, -1))
sketch2.addConstraint(Sketcher.Constraint("PointOnObject", 54, 2, -1))
sketch2.addConstraint(Sketcher.Constraint("PointOnObject", 62, 2, -1))
sketch2.addConstraint(Sketcher.Constraint("PointOnObject", 66, 2, -1))
sketch2.addConstraint(Sketcher.Constraint("PointOnObject", 74, 2, -1))
sketch2.addConstraint(Sketcher.Constraint("PointOnObject", 78, 2, -1))
sketch2.addConstraint(Sketcher.Constraint("Horizontal", 0, 2, 7, 2))
sketch2.addConstraint(Sketcher.Constraint("Horizontal", 11, 2, 12, 2))
sketch2.addConstraint(Sketcher.Constraint("Horizontal", 4, 2, 16, 2))
sketch2.addConstraint(Sketcher.Constraint("Horizontal", 13, 2, 20, 2))
sketch2.addConstraint(Sketcher.Constraint("Horizontal", 10, 2, 22, 2))
sketch2.addConstraint(Sketcher.Constraint("Horizontal", 21, 2, 24, 2))
sketch2.addConstraint(Sketcher.Constraint("Horizontal", 17, 2, 28, 2))
sketch2.addConstraint(Sketcher.Constraint("Horizontal", 25, 2, 32, 2))
sketch2.addConstraint(Sketcher.Constraint("Horizontal", 23, 2, 34, 2))
sketch2.addConstraint(Sketcher.Constraint("Horizontal", 33, 2, 36, 2))
sketch2.addConstraint(Sketcher.Constraint("Horizontal", 29, 2, 40, 2))
sketch2.addConstraint(Sketcher.Constraint("Horizontal", 37, 2, 44, 2))
sketch2.addConstraint(Sketcher.Constraint("Horizontal", 35, 2, 46, 2))
sketch2.addConstraint(Sketcher.Constraint("Horizontal", 45, 2, 48, 2))
sketch2.addConstraint(Sketcher.Constraint("Horizontal", 41, 2, 52, 2))
sketch2.addConstraint(Sketcher.Constraint("Horizontal", 49, 2, 56, 2))
sketch2.addConstraint(Sketcher.Constraint("Horizontal", 47, 2, 58, 2))
sketch2.addConstraint(Sketcher.Constraint("Horizontal", 57, 2, 60, 2))
sketch2.addConstraint(Sketcher.Constraint("Horizontal", 53, 2, 64, 2))
sketch2.addConstraint(Sketcher.Constraint("Horizontal", 61, 2, 68, 2))
sketch2.addConstraint(Sketcher.Constraint("Horizontal", 59, 2, 70, 2))
sketch2.addConstraint(Sketcher.Constraint("Horizontal", 69, 2, 72, 2))
sketch2.addConstraint(Sketcher.Constraint("Horizontal", 65, 2, 76, 2))
sketch2.addConstraint(Sketcher.Constraint("Horizontal", 73, 2, 80, 2))
sketch2.addConstraint(Sketcher.Constraint("Horizontal", 71, 2, 82, 2))
sketch2.addConstraint(Sketcher.Constraint("Vertical", 5, 2, 8, 2))
sketch2.addConstraint(Sketcher.Constraint("Vertical", 3, 2, 10, 2))
sketch2.addConstraint(Sketcher.Constraint("Vertical", 12, 2, 15, 2))
sketch2.addConstraint(Sketcher.Constraint("Vertical", 18, 2, 21, 2))
sketch2.addConstraint(Sketcher.Constraint("Vertical", 24, 2, 27, 2))
sketch2.addConstraint(Sketcher.Constraint("Vertical", 30, 2, 33, 2))
sketch2.addConstraint(Sketcher.Constraint("Vertical", 36, 2, 39, 2))
sketch2.addConstraint(Sketcher.Constraint("Vertical", 42, 2, 45, 2))
sketch2.addConstraint(Sketcher.Constraint("Vertical", 48, 2, 51, 2))
sketch2.addConstraint(Sketcher.Constraint("Vertical", 54, 2, 57, 2))
sketch2.addConstraint(Sketcher.Constraint("Vertical", 60, 2, 63, 2))
sketch2.addConstraint(Sketcher.Constraint("Vertical", 66, 2, 69, 2))
sketch2.addConstraint(Sketcher.Constraint("Vertical", 72, 2, 75, 2))
sketch2.addConstraint(Sketcher.Constraint("Vertical", 78, 2, 81, 2))
sketch2.addConstraint(Sketcher.Constraint("Equal", 2, 6))
sketch2.addConstraint(Sketcher.Constraint("Equal", 8, 13))
sketch2.addConstraint(Sketcher.Constraint("Equal", 10, 17))
sketch2.addConstraint(Sketcher.Constraint("Equal", 15, 19))
sketch2.addConstraint(Sketcher.Constraint("Equal", 21, 25))
sketch2.addConstraint(Sketcher.Constraint("Equal", 23, 29))
sketch2.addConstraint(Sketcher.Constraint("Equal", 27, 31))
sketch2.addConstraint(Sketcher.Constraint("Equal", 33, 37))
sketch2.addConstraint(Sketcher.Constraint("Equal", 35, 41))
sketch2.addConstraint(Sketcher.Constraint("Equal", 39, 43))
sketch2.addConstraint(Sketcher.Constraint("Equal", 45, 49))
sketch2.addConstraint(Sketcher.Constraint("Equal", 47, 53))
sketch2.addConstraint(Sketcher.Constraint("Equal", 51, 55))
sketch2.addConstraint(Sketcher.Constraint("Equal", 57, 61))
sketch2.addConstraint(Sketcher.Constraint("Equal", 59, 65))
sketch2.addConstraint(Sketcher.Constraint("Equal", 63, 67))
sketch2.addConstraint(Sketcher.Constraint("Equal", 69, 73))
sketch2.addConstraint(Sketcher.Constraint("Equal", 71, 77))
sketch2.addConstraint(Sketcher.Constraint("Equal", 75, 79))
sketch2.addConstraint(Sketcher.Constraint("Equal", 83, 3))
sketch2.addConstraint(Sketcher.Constraint("Equal", 5, 9))
sketch2.addConstraint(Sketcher.Constraint("DistanceX", 0, 2, 0, 1, Q("2 mm")))
sketch2.addConstraint(Sketcher.Constraint("DistanceY", 1, 1, 1, 2, Q("20 mm")))
sketch2.addConstraint(Sketcher.Constraint("DistanceX", 4, 1, 4, 2, Q("2.5 mm")))
sketch2.addConstraint(Sketcher.Constraint("DistanceX", -1, 1, 0, 2, Q("18 mm")))
sketch2.addConstraint(Sketcher.Constraint("DistanceX", -1, 1, 12, 2, Q("40 mm")))
sketch2.addConstraint(Sketcher.Constraint("DistanceX", -1, 1, 24, 2, Q("60 mm")))
sketch2.addConstraint(Sketcher.Constraint("DistanceX", -1, 1, 36, 2, Q("80 mm")))
sketch2.addConstraint(Sketcher.Constraint("DistanceX", -1, 1, 48, 2, Q("100 mm")))
sketch2.addConstraint(Sketcher.Constraint("DistanceX", -1, 1, 60, 2, Q("120 mm")))
sketch2.addConstraint(Sketcher.Constraint("DistanceX", -1, 1, 72, 2, Q("140 mm")))
pad2 = body.newObject("PartDesign::Pad", "Pad001")
pad2.Profile = sketch2
pad2.Length = 1
pad2.Reversed = True

doc.recompute()
